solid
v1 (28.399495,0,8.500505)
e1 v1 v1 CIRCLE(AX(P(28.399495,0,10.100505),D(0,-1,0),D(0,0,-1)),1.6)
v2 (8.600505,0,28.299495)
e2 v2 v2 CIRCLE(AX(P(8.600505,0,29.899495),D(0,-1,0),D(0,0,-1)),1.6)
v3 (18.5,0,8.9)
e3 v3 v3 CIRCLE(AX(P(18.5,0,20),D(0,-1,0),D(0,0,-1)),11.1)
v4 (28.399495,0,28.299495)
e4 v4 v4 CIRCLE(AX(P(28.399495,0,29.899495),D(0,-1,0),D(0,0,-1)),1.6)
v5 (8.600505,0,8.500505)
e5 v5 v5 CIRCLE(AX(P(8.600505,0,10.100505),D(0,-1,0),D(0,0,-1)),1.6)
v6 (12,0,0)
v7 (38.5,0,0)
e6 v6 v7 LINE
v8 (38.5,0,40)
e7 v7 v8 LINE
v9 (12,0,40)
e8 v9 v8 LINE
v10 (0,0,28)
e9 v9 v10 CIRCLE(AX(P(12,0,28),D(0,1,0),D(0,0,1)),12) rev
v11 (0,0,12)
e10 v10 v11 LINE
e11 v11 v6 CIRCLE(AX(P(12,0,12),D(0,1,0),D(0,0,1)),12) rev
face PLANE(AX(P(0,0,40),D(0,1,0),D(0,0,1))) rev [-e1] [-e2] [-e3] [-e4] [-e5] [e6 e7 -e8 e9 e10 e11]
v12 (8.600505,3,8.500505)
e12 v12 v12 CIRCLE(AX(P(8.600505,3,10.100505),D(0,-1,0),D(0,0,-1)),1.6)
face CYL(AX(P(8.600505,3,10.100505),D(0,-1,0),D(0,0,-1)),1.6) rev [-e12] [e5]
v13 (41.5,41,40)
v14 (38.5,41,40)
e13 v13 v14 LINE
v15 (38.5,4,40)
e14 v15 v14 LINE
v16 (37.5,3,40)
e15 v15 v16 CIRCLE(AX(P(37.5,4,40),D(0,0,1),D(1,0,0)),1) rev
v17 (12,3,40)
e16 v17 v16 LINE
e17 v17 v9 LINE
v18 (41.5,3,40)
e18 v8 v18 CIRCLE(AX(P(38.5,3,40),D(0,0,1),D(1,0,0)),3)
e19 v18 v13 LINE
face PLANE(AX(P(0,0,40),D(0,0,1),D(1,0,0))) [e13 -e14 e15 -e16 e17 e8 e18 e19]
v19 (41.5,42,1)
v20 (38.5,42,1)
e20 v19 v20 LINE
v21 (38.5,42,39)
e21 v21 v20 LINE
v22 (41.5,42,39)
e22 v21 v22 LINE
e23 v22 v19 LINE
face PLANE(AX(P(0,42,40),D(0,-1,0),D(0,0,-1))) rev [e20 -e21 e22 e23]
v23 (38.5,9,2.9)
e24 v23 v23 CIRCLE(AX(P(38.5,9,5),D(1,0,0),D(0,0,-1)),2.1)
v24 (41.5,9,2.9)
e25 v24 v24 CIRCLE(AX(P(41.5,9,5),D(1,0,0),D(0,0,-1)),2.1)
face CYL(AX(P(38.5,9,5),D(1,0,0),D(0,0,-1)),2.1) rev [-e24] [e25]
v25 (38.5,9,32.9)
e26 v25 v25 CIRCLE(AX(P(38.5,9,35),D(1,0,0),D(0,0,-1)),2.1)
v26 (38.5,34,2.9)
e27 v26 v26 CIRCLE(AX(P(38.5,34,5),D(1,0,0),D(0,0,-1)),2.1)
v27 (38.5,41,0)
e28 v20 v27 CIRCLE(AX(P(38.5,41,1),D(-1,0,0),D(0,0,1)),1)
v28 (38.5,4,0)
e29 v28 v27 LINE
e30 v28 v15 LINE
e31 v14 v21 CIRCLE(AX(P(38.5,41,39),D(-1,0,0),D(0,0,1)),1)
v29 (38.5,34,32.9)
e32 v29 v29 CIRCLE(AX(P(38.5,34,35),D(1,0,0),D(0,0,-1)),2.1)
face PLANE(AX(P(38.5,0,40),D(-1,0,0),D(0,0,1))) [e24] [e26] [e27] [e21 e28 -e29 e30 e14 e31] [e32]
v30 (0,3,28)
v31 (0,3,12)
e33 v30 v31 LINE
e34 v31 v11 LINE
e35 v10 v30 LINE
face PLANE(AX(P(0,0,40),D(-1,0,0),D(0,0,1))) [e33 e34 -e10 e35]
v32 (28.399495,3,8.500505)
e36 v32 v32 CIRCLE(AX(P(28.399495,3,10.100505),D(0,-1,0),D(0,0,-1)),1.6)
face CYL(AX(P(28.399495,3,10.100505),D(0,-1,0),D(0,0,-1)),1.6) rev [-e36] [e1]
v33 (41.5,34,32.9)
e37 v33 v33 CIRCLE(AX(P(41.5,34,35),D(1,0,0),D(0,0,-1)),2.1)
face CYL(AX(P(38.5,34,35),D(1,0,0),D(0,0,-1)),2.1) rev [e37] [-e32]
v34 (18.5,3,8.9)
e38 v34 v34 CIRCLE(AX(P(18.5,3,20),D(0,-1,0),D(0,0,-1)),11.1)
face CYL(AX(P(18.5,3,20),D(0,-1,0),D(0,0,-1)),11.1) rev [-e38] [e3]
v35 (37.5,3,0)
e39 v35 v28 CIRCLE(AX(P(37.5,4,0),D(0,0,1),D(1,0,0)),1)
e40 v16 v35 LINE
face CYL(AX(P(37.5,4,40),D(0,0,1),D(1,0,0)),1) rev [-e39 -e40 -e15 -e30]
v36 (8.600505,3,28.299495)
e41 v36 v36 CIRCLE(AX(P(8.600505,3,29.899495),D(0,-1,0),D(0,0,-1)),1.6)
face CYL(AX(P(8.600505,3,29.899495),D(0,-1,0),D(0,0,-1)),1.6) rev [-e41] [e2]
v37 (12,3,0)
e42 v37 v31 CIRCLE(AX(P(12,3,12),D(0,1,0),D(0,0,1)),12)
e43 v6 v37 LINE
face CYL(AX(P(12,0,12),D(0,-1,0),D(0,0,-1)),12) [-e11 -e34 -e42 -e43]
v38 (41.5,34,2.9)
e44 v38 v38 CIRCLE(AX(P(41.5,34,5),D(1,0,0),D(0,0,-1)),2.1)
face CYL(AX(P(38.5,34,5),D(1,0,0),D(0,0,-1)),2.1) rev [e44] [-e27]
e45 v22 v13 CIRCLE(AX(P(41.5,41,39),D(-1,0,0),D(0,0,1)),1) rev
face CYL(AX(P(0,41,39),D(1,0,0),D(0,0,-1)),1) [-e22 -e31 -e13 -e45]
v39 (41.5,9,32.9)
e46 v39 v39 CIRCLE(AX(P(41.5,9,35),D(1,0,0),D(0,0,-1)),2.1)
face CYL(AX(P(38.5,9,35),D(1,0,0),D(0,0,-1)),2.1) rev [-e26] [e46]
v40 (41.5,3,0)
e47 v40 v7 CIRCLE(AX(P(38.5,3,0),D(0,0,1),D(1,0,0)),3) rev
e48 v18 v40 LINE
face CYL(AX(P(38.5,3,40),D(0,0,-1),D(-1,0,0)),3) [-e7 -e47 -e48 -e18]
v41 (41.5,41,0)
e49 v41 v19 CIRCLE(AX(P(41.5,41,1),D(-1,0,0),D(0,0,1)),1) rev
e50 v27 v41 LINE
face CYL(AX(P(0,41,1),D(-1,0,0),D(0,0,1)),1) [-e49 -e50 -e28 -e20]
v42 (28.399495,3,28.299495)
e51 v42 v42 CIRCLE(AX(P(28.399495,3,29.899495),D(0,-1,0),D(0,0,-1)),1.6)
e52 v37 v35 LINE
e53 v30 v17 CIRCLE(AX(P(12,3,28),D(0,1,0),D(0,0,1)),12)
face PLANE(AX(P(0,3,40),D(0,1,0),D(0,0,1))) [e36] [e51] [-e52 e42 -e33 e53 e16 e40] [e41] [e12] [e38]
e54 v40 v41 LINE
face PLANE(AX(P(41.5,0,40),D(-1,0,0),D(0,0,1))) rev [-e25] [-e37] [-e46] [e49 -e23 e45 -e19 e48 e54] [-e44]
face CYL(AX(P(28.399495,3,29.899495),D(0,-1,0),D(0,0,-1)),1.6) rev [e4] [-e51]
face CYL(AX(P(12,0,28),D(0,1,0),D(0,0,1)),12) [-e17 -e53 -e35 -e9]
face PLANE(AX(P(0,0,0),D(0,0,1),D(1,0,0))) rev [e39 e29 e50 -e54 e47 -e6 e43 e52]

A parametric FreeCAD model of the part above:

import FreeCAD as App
import Part
import Sketcher
from FreeCAD import Vector


def edges_at(feature, points):
    """Names of the edges that pass closest to the given points."""
    edges = feature.Shape.Edges
    near = lambda p: min(range(len(edges)), key=lambda i: edges[i].distToShape(Part.Vertex(*p))[0])
    return sorted({f"Edge{near(p) + 1}" for p in points})

doc = App.newDocument("Part")
body = doc.addObject("PartDesign::Body", "Body")

# Sketch on XY plane
sketch1 = doc.addObject("Sketcher::SketchObject", "Sketch")
body.addObject(sketch1)
sketch1.AttachmentSupport = (doc.XY_Plane, [""])
sketch1.MapMode = "FlatFace"
sketch1.addGeometry([
    Part.LineSegment(Vector(0, 3, 0), Vector(0, 0, 0)),  # 0
    Part.LineSegment(Vector(0, 0, 0), Vector(41.5, 0, 0)),  # 1
    Part.LineSegment(Vector(41.5, 0, 0), Vector(41.5, 42, 0)),  # 2
    Part.LineSegment(Vector(41.5, 42, 0), Vector(38.5, 42, 0)),  # 3
    Part.LineSegment(Vector(38.5, 42, 0), Vector(38.5, 3, 0)),  # 4
    Part.LineSegment(Vector(38.5, 3, 0), Vector(0, 3, 0)),  # 5
], False)
sketch1.addConstraint([
    Sketcher.Constraint("Coincident", 0, 2, 1, 1),
    Sketcher.Constraint("Coincident", 1, 2, 2, 1),
    Sketcher.Constraint("Coincident", 2, 2, 3, 1),
    Sketcher.Constraint("Coincident", 3, 2, 4, 1),
    Sketcher.Constraint("Coincident", 4, 2, 5, 1),
    Sketcher.Constraint("Coincident", 5, 2, 0, 1),
    Sketcher.Constraint("Vertical", 0),
    Sketcher.Constraint("Horizontal", 1),
    Sketcher.Constraint("Vertical", 2),
    Sketcher.Constraint("Horizontal", 3),
    Sketcher.Constraint("Vertical", 4),
    Sketcher.Constraint("Horizontal", 5),
    Sketcher.Constraint("Coincident", 0, 2, -1, 1),
    Sketcher.Constraint("Equal", 3, 0),
    Sketcher.Constraint("DistanceX", 3, 2, 3, 1, 3.0),
    Sketcher.Constraint("DistanceY", 2, 1, 2, 2, 42.0),
    Sketcher.Constraint("DistanceX", 1, 1, 1, 2, 41.5),
])
pad1 = doc.addObject("PartDesign::Pad", "Pad")
body.addObject(pad1)
pad1.Profile = sketch1
pad1.Length = 40

# Sketch on YZ plane
sketch2 = doc.addObject("Sketcher::SketchObject", "Sketch001")
body.addObject(sketch2)
sketch2.AttachmentSupport = (doc.YZ_Plane, [""])
sketch2.MapMode = "FlatFace"
sketch2.AttachmentOffset = App.Placement(Vector(0, 0, 41.5), App.Rotation())
sketch2.addGeometry([
    Part.Circle(Vector(34, 35, 0), Vector(0, 0, 1), 2.1),
    Part.Circle(Vector(34, 5, 0), Vector(0, 0, 1), 2.1),
    Part.Circle(Vector(9, 35, 0), Vector(0, 0, 1), 2.1),
    Part.Circle(Vector(9, 5, 0), Vector(0, 0, 1), 2.1),
], False)
sketch2.addConstraint([
    Sketcher.Constraint("Equal", 0, 1),
    Sketcher.Constraint("Equal", 1, 2),
    Sketcher.Constraint("Equal", 2, 3),
    Sketcher.Constraint("Horizontal", 0, 3, 2, 3),
    Sketcher.Constraint("Horizontal", 1, 3, 3, 3),
    Sketcher.Constraint("Vertical", 0, 3, 1, 3),
    Sketcher.Constraint("Vertical", 2, 3, 3, 3),
    Sketcher.Constraint("Diameter", 0, 4.2),
    Sketcher.Constraint("DistanceX", -1, 1, 0, 3, 34.0),
    Sketcher.Constraint("DistanceY", -1, 1, 0, 3, 35.0),
    Sketcher.Constraint("DistanceY", -1, 1, 1, 3, 5.0),
    Sketcher.Constraint("DistanceX", -1, 1, 2, 3, 9.0),
])
pocket1 = doc.addObject("PartDesign::Pocket", "Pocket")
body.addObject(pocket1)
pocket1.Profile = sketch2
pocket1.Length = 3

# Sketch on XZ plane
sketch3 = doc.addObject("Sketcher::SketchObject", "Sketch002")
body.addObject(sketch3)
sketch3.AttachmentSupport = (doc.XZ_Plane, [""])
sketch3.MapMode = "FlatFace"
sketch3.addGeometry([
    Part.Circle(Vector(18.5, 20, 0), Vector(0, 0, 1), 11.1),  # 0
    Part.Circle(Vector(8.600505, 29.899495, 0), Vector(0, 0, 1), 1.6),  # 1
    Part.Circle(Vector(28.399495, 29.899495, 0), Vector(0, 0, 1), 1.6),  # 2
    Part.Circle(Vector(28.399495, 10.100505, 0), Vector(0, 0, 1), 1.6),  # 3
    Part.Circle(Vector(8.600505, 10.100505, 0), Vector(0, 0, 1), 1.6),  # 4
], False)
sketch3.addConstraint([
    Sketcher.Constraint("Equal", 1, 2),
    Sketcher.Constraint("Equal", 2, 3),
    Sketcher.Constraint("Equal", 3, 4),
    Sketcher.Constraint("Horizontal", 1, 3, 2, 3),
    Sketcher.Constraint("Horizontal", 3, 3, 4, 3),
    Sketcher.Constraint("Vertical", 2, 3, 3, 3),
    Sketcher.Constraint("Vertical", 1, 3, 4, 3),
    Sketcher.Constraint("Diameter", 0, 22.2),
    Sketcher.Constraint("Diameter", 1, 3.2),
    Sketcher.Constraint("DistanceY", -1, 1, 0, 3, 20.0),
    Sketcher.Constraint("DistanceX", -1, 1, 0, 3, 18.5),
    Sketcher.Constraint("DistanceX", 1, 3, 2, 3, 19.79899),
    Sketcher.Constraint("DistanceY", 3, 3, 2, 3, 19.79899),
    Sketcher.Constraint("DistanceX", -1, 1, 1, 3, 8.600505),
    Sketcher.Constraint("DistanceY", -1, 1, 1, 3, 29.899495),
])
pocket2 = doc.addObject("PartDesign::Pocket", "Pocket001")
body.addObject(pocket2)
pocket2.Profile = sketch3
pocket2.Length = 3
doc.recompute()

fillet = doc.addObject("PartDesign::Fillet", "Fillet")
body.addObject(fillet)
fillet.Base = (pocket2, edges_at(pocket2, [(41.5, 0, 20)]))
fillet.Radius = 3
doc.recompute()

fillet2 = doc.addObject("PartDesign::Fillet", "Fillet001")
body.addObject(fillet2)
fillet2.Base = (fillet, edges_at(fillet, [(0, 1.5, 40), (0, 1.5, 0)]))
fillet2.Radius = 12
doc.recompute()

fillet3 = doc.addObject("PartDesign::Fillet", "Fillet002")
body.addObject(fillet3)
fillet3.Base = (fillet2, edges_at(fillet2, [(40, 42, 40), (40, 42, 0)]))
fillet3.Radius = 1
doc.recompute()

fillet4 = doc.addObject("PartDesign::Fillet", "Fillet003")
body.addObject(fillet4)
fillet4.Base = (fillet3, edges_at(fillet3, [(38.5, 3, 20)]))
fillet4.Radius = 1

doc.recompute()
